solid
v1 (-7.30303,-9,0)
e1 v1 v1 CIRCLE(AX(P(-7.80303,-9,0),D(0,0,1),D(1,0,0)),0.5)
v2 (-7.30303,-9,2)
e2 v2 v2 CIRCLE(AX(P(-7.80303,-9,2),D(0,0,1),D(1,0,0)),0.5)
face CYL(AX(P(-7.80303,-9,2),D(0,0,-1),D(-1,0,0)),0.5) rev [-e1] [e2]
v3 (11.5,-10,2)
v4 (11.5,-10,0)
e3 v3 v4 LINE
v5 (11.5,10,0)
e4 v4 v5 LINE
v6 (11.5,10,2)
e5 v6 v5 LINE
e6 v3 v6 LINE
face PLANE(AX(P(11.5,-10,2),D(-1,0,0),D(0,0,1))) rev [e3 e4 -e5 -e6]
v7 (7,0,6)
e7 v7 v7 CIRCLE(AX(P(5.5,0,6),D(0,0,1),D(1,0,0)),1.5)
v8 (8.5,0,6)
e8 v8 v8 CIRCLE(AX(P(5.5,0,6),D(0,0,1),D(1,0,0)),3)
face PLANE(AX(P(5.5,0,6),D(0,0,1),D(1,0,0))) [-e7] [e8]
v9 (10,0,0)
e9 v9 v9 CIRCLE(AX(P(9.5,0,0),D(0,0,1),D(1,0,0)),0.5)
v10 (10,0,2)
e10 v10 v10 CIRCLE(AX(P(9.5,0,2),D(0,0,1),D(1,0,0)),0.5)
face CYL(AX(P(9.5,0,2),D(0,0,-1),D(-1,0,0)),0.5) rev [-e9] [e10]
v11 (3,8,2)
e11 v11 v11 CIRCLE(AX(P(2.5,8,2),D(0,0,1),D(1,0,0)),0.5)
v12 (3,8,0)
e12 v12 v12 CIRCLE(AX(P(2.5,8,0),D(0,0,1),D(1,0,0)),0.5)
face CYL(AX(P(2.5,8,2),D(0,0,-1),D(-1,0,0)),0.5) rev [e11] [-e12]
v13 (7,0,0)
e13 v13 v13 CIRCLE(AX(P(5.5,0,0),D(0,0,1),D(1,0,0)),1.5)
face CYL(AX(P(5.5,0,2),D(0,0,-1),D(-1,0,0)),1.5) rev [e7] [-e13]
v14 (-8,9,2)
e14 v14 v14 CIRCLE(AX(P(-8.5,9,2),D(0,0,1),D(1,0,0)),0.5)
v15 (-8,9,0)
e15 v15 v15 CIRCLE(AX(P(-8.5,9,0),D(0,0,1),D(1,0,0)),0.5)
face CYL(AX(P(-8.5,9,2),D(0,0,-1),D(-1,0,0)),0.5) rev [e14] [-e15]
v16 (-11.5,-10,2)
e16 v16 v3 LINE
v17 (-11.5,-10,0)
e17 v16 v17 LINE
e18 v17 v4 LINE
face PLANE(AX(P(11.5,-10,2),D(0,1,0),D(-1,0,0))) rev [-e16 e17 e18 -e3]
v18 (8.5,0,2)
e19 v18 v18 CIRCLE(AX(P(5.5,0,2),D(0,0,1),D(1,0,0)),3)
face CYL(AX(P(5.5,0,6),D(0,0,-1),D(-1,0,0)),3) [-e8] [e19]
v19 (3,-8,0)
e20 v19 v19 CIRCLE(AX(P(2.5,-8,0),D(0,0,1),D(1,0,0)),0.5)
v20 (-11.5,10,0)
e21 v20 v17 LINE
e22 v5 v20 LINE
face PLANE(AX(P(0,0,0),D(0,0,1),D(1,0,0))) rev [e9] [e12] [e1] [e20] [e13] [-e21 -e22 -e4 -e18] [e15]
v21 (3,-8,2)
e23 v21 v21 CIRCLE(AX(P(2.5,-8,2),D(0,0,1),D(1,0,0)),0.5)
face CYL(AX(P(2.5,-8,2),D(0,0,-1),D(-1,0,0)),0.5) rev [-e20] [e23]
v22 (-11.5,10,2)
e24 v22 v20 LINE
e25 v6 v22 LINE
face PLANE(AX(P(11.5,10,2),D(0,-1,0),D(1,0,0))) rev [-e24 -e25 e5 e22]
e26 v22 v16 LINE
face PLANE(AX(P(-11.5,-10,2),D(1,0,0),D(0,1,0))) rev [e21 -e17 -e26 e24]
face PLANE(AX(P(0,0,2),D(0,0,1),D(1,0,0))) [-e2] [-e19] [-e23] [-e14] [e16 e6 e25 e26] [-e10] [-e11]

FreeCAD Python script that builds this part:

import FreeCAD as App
import Part
import Sketcher
from FreeCAD import Vector
Q = App.Units.Quantity

doc = App.newDocument("Part")
params = doc.addObject("Spreadsheet::Sheet", "Params")
for row, (alias, value) in enumerate([
    ("sketch1_diameter", "1 mm"),
    ("sketch1_diameter2", "3 mm"),
    ("sketch1_width", "23 mm"),
    ("sketch1_height", "20 mm"),
    ("pad1_length", "2 mm"),
    ("sketch2_diameter", "6 mm"),
    ("sketch2_diameter2", "3 mm"),
    ("pad2_length", "4 mm"),
], start=1):
    params.set(f"A{row}", alias)
    params.set(f"B{row}", "=" + value)
    params.setAlias(f"B{row}", alias)

body = doc.addObject("PartDesign::Body", "Body")

# Sketch on XY plane
sketch1 = body.newObject("Sketcher::SketchObject", "Sketch")
sketch1.AttachmentSupport = (doc.getObject("XY_Plane"), [""])
sketch1.MapMode = "FlatFace"
sketch1.addGeometry(Part.LineSegment(Vector(-11.5, 10, 0), Vector(-11.5, -10, 0)), False)
sketch1.addGeometry(Part.LineSegment(Vector(-11.5, -10, 0), Vector(11.5, -10, 0)), False)
sketch1.addGeometry(Part.LineSegment(Vector(11.5, -10, 0), Vector(11.5, 10, 0)), False)
sketch1.addGeometry(Part.LineSegment(Vector(11.5, 10, 0), Vector(-11.5, 10, 0)), False)
sketch1.addGeometry(Part.Circle(Vector(-7.8, -9, 0), Vector(0, 0, 1), 0.5), False)
sketch1.addGeometry(Part.Circle(Vector(2.5, -8, 0), Vector(0, 0, 1), 0.5), False)
sketch1.addGeometry(Part.Circle(Vector(-8.5, 9, 0), Vector(0, 0, 1), 0.5), False)
sketch1.addGeometry(Part.Circle(Vector(5.5, 0, 0), Vector(0, 0, 1), 1.5), False)
sketch1.addGeometry(Part.Circle(Vector(9.5, 0, 0), Vector(0, 0, 1), 0.5), False)
sketch1.addGeometry(Part.Circle(Vector(2.5, 8, 0), Vector(0, 0, 1), 0.5), False)
sketch1.addConstraint(Sketcher.Constraint("Coincident", 0, 2, 1, 1))
sketch1.addConstraint(Sketcher.Constraint("Coincident", 1, 2, 2, 1))
sketch1.addConstraint(Sketcher.Constraint("Coincident", 2, 2, 3, 1))
sketch1.addConstraint(Sketcher.Constraint("Coincident", 3, 2, 0, 1))
sketch1.addConstraint(Sketcher.Constraint("Vertical", 0))
sketch1.addConstraint(Sketcher.Constraint("Horizontal", 1))
sketch1.addConstraint(Sketcher.Constraint("Vertical", 2))
sketch1.addConstraint(Sketcher.Constraint("Horizontal", 3))
sketch1.addConstraint(Sketcher.Constraint("Equal", 4, 5))
sketch1.addConstraint(Sketcher.Constraint("Equal", 5, 6))
sketch1.addConstraint(Sketcher.Constraint("Equal", 6, 8))
sketch1.addConstraint(Sketcher.Constraint("Equal", 8, 9))
sketch1.addConstraint(Sketcher.Constraint("Symmetric", 0, 2, 2, 2, -1, 1))
sketch1.addConstraint(Sketcher.Constraint("Symmetric", 5, 3, 9, 3, -1))
sketch1.addConstraint(Sketcher.Constraint("PointOnObject", 7, 3, -1))
sketch1.addConstraint(Sketcher.Constraint("PointOnObject", 8, 3, -1))
sketch1.addConstraint(Sketcher.Constraint("Diameter", 4, Q("1 mm")))
sketch1.addConstraint(Sketcher.Constraint("Diameter", 7, Q("3 mm")))
sketch1.addConstraint(Sketcher.Constraint("DistanceX", 1, 1, 1, 2, Q("23 mm")))
sketch1.addConstraint(Sketcher.Constraint("DistanceY", 0, 2, 0, 1, Q("20 mm")))
sketch1.addConstraint(Sketcher.Constraint("DistanceY", 4, 3, -1, 1, Q("9 mm")))
sketch1.addConstraint(Sketcher.Constraint("DistanceY", 5, 3, -1, 1, Q("8 mm")))
sketch1.addConstraint(Sketcher.Constraint("DistanceY", -1, 1, 6, 3, Q("9 mm")))
sketch1.addConstraint(Sketcher.Constraint("DistanceX", 6, 3, 5, 3, Q("11 mm")))
sketch1.addConstraint(Sketcher.Constraint("DistanceX", 5, 3, 7, 3, Q("3 mm")))
sketch1.addConstraint(Sketcher.Constraint("DistanceX", 7, 3, 8, 3, Q("4 mm")))
sketch1.addConstraint(Sketcher.Constraint("DistanceX", 0, 2, 5, 3, Q("14 mm")))
sketch1.addConstraint(Sketcher.Constraint("DistanceX", 4, 3, -1, 1, Q("7.80303 mm")))
sketch1.setExpression("Constraints[16]", "Params.sketch1_diameter")
sketch1.setExpression("Constraints[17]", "Params.sketch1_diameter2")
sketch1.setExpression("Constraints[18]", "Params.sketch1_width")
sketch1.setExpression("Constraints[19]", "Params.sketch1_height")
pad1 = body.newObject("PartDesign::Pad", "Pad")
pad1.Profile = sketch1
pad1.setExpression("Length", "Params.pad1_length")

# Sketch on XY plane
sketch2 = body.newObject("Sketcher::SketchObject", "Sketch001")
sketch2.AttachmentSupport = (doc.getObject("XY_Plane"), [""])
sketch2.MapMode = "FlatFace"
sketch2.AttachmentOffset = App.Placement(Vector(0, 0, 2), App.Rotation())
sketch2.addGeometry(Part.Circle(Vector(5.5, 0, 0), Vector(0, 0, 1), 3), False)
sketch2.addGeometry(Part.Circle(Vector(5.5, 0, 0), Vector(0, 0, 1), 1.5), False)
sketch2.addConstraint(Sketcher.Constraint("Coincident", 1, 3, 0, 3))
sketch2.addConstraint(Sketcher.Constraint("PointOnObject", 0, 3, -1))
sketch2.addConstraint(Sketcher.Constraint("Diameter", 0, Q("6 mm")))
sketch2.addConstraint(Sketcher.Constraint("Diameter", 1, Q("3 mm")))
sketch2.addConstraint(Sketcher.Constraint("DistanceX", -1, 1, 0, 3, Q("5.5 mm")))
sketch2.setExpression("Constraints[2]", "Params.sketch2_diameter")
sketch2.setExpression("Constraints[3]", "Params.sketch2_diameter2")
pad2 = body.newObject("PartDesign::Pad", "Pad001")
pad2.Profile = sketch2
pad2.setExpression("Length", "Params.pad2_length")

doc.recompute()
